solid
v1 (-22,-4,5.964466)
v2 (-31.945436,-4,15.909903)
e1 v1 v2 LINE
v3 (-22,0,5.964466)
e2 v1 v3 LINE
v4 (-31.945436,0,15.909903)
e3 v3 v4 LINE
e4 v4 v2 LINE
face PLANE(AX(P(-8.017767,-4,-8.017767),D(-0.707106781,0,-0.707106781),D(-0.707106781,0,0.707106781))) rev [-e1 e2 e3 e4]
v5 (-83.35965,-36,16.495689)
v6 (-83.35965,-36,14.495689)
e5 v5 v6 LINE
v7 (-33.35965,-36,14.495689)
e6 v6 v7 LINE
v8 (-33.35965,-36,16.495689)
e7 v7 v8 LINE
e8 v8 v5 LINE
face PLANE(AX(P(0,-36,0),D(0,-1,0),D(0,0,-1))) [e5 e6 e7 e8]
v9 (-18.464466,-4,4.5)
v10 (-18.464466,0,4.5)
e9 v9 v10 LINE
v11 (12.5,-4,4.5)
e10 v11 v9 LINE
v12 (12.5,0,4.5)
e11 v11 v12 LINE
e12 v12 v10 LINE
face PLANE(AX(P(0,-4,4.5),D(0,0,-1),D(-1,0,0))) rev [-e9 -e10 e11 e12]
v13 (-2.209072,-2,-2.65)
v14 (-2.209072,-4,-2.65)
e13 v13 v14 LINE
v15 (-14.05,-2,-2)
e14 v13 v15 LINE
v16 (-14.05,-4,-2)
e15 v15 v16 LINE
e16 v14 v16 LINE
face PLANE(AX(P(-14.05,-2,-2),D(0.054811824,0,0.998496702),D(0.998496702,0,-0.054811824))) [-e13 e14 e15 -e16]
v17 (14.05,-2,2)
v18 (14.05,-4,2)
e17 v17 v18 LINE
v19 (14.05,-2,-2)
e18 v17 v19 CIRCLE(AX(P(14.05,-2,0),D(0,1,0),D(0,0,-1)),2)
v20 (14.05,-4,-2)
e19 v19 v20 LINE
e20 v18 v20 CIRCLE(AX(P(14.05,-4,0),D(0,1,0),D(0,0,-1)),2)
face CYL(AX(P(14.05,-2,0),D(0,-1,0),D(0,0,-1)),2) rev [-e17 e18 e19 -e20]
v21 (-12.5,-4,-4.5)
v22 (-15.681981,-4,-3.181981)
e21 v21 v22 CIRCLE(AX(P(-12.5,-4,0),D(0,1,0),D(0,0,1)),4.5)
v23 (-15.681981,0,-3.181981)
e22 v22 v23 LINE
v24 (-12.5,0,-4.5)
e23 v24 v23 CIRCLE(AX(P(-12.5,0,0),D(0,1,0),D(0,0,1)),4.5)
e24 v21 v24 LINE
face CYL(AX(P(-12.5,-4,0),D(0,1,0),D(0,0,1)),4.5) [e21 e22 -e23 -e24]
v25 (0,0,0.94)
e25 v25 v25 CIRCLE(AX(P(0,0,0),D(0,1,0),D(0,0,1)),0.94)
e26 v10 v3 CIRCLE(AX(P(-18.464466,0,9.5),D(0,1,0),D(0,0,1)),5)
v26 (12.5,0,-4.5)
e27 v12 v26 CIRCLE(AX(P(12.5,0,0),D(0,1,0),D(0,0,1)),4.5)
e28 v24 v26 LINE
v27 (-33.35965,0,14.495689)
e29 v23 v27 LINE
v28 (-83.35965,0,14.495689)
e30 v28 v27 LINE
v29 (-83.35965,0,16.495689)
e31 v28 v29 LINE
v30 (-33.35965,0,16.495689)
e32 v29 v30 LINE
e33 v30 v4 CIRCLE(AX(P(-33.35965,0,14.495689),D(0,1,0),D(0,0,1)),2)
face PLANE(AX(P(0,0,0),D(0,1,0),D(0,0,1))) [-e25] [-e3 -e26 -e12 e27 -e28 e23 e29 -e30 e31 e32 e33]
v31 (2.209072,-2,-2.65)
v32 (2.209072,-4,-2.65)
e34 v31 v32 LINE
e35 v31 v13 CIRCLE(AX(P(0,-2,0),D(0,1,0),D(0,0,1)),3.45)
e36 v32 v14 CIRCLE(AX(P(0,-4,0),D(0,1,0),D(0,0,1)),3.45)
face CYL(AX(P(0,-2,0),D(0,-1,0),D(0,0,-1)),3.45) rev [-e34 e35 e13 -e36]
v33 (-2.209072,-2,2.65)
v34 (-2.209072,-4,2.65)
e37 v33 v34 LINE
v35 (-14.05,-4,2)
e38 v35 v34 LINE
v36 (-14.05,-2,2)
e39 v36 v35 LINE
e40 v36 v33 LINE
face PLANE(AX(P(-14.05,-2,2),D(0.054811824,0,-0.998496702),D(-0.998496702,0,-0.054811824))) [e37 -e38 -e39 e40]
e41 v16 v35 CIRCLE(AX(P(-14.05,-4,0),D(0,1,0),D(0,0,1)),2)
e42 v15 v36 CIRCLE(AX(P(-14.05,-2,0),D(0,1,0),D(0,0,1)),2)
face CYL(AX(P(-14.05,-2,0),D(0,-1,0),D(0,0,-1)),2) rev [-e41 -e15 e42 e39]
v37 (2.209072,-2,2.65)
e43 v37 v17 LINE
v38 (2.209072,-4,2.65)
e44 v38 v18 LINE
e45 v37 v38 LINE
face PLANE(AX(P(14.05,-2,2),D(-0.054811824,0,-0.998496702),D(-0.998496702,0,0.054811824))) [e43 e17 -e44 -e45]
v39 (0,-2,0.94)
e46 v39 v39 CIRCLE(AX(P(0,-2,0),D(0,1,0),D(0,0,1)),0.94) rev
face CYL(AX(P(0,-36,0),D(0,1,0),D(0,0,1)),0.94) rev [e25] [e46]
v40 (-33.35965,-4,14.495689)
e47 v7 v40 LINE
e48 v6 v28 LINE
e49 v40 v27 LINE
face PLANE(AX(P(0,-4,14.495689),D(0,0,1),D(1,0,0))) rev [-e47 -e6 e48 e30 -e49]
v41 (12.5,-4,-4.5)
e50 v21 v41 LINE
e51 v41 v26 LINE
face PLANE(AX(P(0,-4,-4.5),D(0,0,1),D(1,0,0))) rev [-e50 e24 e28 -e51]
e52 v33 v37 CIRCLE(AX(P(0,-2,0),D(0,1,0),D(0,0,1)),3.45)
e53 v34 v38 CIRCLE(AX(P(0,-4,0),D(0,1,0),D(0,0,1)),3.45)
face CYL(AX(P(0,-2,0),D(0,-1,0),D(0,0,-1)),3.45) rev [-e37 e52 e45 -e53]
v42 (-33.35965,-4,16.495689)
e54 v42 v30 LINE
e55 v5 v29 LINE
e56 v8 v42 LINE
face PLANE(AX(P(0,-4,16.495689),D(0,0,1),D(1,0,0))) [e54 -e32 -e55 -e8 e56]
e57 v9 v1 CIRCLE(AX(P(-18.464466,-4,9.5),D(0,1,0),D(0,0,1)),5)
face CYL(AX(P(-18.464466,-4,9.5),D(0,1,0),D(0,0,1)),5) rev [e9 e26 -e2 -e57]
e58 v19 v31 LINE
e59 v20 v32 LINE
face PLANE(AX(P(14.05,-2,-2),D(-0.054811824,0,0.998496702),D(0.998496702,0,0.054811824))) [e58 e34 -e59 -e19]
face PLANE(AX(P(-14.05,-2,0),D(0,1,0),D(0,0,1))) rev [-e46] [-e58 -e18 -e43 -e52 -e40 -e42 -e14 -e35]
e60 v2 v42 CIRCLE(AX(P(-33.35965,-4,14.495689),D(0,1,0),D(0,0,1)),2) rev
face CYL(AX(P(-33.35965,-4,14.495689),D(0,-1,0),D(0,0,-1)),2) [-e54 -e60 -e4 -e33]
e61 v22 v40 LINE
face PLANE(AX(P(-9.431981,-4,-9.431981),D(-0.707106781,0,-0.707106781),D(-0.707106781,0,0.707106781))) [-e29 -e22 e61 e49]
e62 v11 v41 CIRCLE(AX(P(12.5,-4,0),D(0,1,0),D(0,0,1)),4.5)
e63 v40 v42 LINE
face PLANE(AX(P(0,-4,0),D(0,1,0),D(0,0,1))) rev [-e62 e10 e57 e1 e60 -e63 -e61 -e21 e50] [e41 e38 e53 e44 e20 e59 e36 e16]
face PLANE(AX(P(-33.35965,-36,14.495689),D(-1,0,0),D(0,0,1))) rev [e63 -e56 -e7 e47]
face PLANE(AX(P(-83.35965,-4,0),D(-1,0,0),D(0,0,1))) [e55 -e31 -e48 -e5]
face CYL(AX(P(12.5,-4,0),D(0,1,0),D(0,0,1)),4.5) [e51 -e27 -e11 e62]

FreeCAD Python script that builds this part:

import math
import FreeCAD as App
import Part
import Sketcher
from FreeCAD import Vector
Q = App.Units.Quantity


def edges_at(feature, points):
    """Names of the edges that pass closest to the given points."""
    edges = feature.Shape.Edges
    near = lambda p: min(range(len(edges)), key=lambda i: edges[i].distToShape(Part.Vertex(*p))[0])
    return sorted({f"Edge{near(p) + 1}" for p in points})

doc = App.newDocument("Part")
body = doc.addObject("PartDesign::Body", "Body")

# Sketch on XZ plane
sketch1 = doc.addObject("Sketcher::SketchObject", "Sketch")
body.addObject(sketch1)
sketch1.AttachmentSupport = (doc.XZ_Plane, [""])
sketch1.MapMode = "FlatFace"
sketch1.addGeometry([
    Part.LineSegment(Vector(12.5, -4.5, 0), Vector(-12.5, -4.5, 0)),  # 0
    Part.ArcOfCircle(Part.Circle(Vector(-12.5, 0, 0), Vector(0, 0, 1), 4.5), math.radians(-135), math.radians(-90)),  # 1
    Part.LineSegment(Vector(-15.7, -3.2, 0), Vector(-33.4, 14.5, 0)),  # 2
    Part.LineSegment(Vector(-33.4, 14.5, 0), Vector(-83.4, 14.5, 0)),  # 3
    Part.LineSegment(Vector(-83.4, 14.5, 0), Vector(-83.4, 16.5, 0)),  # 4
    Part.LineSegment(Vector(-83.4, 16.5, 0), Vector(-32.5, 16.5, 0)),  # 5
    Part.LineSegment(Vector(-32.5, 16.5, 0), Vector(-22, 6, 0)),  # 6
    Part.ArcOfCircle(Part.Circle(Vector(-18.5, 9.5, 0), Vector(0, 0, 1), 5), math.radians(-135), math.radians(-90)),  # 7
    Part.LineSegment(Vector(-18.5, 4.5, 0), Vector(12.5, 4.5, 0)),  # 8
    Part.ArcOfCircle(Part.Circle(Vector(12.5, 0, 0), Vector(0, 0, 1), 4.5), math.radians(-90), math.radians(90)),  # 9
], False)
sketch1.addConstraint([
    Sketcher.Constraint("Tangent", 0, 2, 1, 2),
    Sketcher.Constraint("Tangent", 1, 1, 2, 1),
    Sketcher.Constraint("Coincident", 2, 2, 3, 1),
    Sketcher.Constraint("Coincident", 3, 2, 4, 1),
    Sketcher.Constraint("Coincident", 4, 2, 5, 1),
    Sketcher.Constraint("Coincident", 5, 2, 6, 1),
    Sketcher.Constraint("Tangent", 6, 2, 7, 1),
    Sketcher.Constraint("Tangent", 7, 2, 8, 1),
    Sketcher.Constraint("Tangent", 8, 2, 9, 2),
    Sketcher.Constraint("Tangent", 9, 1, 0, 1),
    Sketcher.Constraint("Horizontal", 0),
    Sketcher.Constraint("Horizontal", 3),
    Sketcher.Constraint("Vertical", 4),
    Sketcher.Constraint("Horizontal", 5),
    Sketcher.Constraint("Horizontal", 8),
    Sketcher.Constraint("Equal", 1, 9),
    Sketcher.Constraint("Symmetric", 1, 3, 9, 3, -1, 1),
    Sketcher.Constraint("Parallel", 2, 6),
    Sketcher.Constraint("Radius", 7, Q("5 mm")),
    Sketcher.Constraint("Radius", 1, Q("4.5 mm")),
    Sketcher.Constraint("DistanceX", 0, 2, 0, 1, Q("25 mm")),
    Sketcher.Constraint("DistanceX", 3, 2, 3, 1, Q("50 mm")),
    Sketcher.Constraint("DistanceY", 4, 1, 4, 2, Q("2 mm")),
    Sketcher.Constraint("Angle", 2, Q("135 deg")),
    Sketcher.Constraint("Distance", 2, Q("25 mm")),
    Sketcher.Constraint("DistanceX", 6, 2, -1, 1, Q("22 mm")),
])
pad1 = doc.addObject("PartDesign::Pad", "Pad")
body.addObject(pad1)
pad1.Profile = sketch1
pad1.Length = 4

# Sketch on XZ plane
sketch2 = doc.addObject("Sketcher::SketchObject", "Sketch001")
body.addObject(sketch2)
sketch2.AttachmentSupport = (doc.XZ_Plane, [""])
sketch2.MapMode = "FlatFace"
sketch2.AttachmentOffset = App.Placement(Vector(0, 0, 4), App.Rotation())
sketch2.addGeometry([
    Part.LineSegment(Vector(-83.4, 16.5, 0), Vector(-83.4, 14.5, 0)),
    Part.LineSegment(Vector(-83.4, 14.5, 0), Vector(-33.4, 14.5, 0)),
    Part.LineSegment(Vector(-33.4, 14.5, 0), Vector(-33.4, 16.5, 0)),
    Part.LineSegment(Vector(-33.4, 16.5, 0), Vector(-83.4, 16.5, 0)),
], False)
sketch2.addConstraint([
    Sketcher.Constraint("Coincident", 0, 2, 1, 1),
    Sketcher.Constraint("Coincident", 1, 2, 2, 1),
    Sketcher.Constraint("Coincident", 2, 2, 3, 1),
    Sketcher.Constraint("Coincident", 3, 2, 0, 1),
    Sketcher.Constraint("Vertical", 0),
    Sketcher.Constraint("Horizontal", 1),
    Sketcher.Constraint("Vertical", 2),
    Sketcher.Constraint("Horizontal", 3),
    Sketcher.Constraint("DistanceX", 1, 1, 1, 2, Q("50 mm")),
    Sketcher.Constraint("DistanceY", 0, 2, 0, 1, Q("2 mm")),
    Sketcher.Constraint("DistanceX", 0, 2, -1, 1, Q("83.35965 mm")),
    Sketcher.Constraint("DistanceY", -1, 1, 0, 2, Q("14.495689 mm")),
])
pad2 = doc.addObject("PartDesign::Pad", "Pad001")
body.addObject(pad2)
pad2.Profile = sketch2
pad2.Length = 32

# Sketch on XZ plane
sketch3 = doc.addObject("Sketcher::SketchObject", "Sketch002")
body.addObject(sketch3)
sketch3.AttachmentSupport = (doc.XZ_Plane, [""])
sketch3.MapMode = "FlatFace"
sketch3.addGeometry(Part.Circle(Vector(0, 0, 0), Vector(0, 0, 1), 0.9), False)
sketch3.addConstraint([
    Sketcher.Constraint("Coincident", 0, 3, -1, 1),
    Sketcher.Constraint("Diameter", 0, Q("1.88 mm")),
])
pocket1 = doc.addObject("PartDesign::Pocket", "Pocket")
body.addObject(pocket1)
pocket1.Profile = sketch3
pocket1.Type = "ThroughAll"
pocket1.Reversed = True

# Sketch on XZ plane
sketch4 = doc.addObject("Sketcher::SketchObject", "Sketch003")
body.addObject(sketch4)
sketch4.AttachmentSupport = (doc.XZ_Plane, [""])
sketch4.MapMode = "FlatFace"
sketch4.AttachmentOffset = App.Placement(Vector(0, 0, 4), App.Rotation())
sketch4.addGeometry([
    Part.LineSegment(Vector(-2.2, -2.6, 0), Vector(-14.1, -2, 0)),  # 0
    Part.ArcOfCircle(Part.Circle(Vector(-14.1, 0, 0), Vector(0, 0, 1), 2), math.radians(90), math.radians(270)),  # 1
    Part.LineSegment(Vector(-14.1, 2, 0), Vector(-2.2, 2.6, 0)),  # 2
    Part.ArcOfCircle(Part.Circle(Vector(0, 0, 0), Vector(0, 0, 1), 3.4), math.radians(50), math.radians(130)),  # 3
    Part.LineSegment(Vector(2.2, 2.6, 0), Vector(14.1, 2, 0)),  # 4
    Part.ArcOfCircle(Part.Circle(Vector(14.1, 0, 0), Vector(0, 0, 1), 2), math.radians(-90), math.radians(90)),  # 5
    Part.LineSegment(Vector(14.1, -2, 0), Vector(2.2, -2.6, 0)),  # 6
    Part.ArcOfCircle(Part.Circle(Vector(0, 0, 0), Vector(0, 0, 1), 3.4), math.radians(-130), math.radians(-50)),  # 7
], False)
sketch4.addConstraint([
    Sketcher.Constraint("Coincident", 0, 2, 1, 2),
    Sketcher.Constraint("Coincident", 1, 1, 2, 1),
    Sketcher.Constraint("Coincident", 2, 2, 3, 2),
    Sketcher.Constraint("Coincident", 3, 1, 4, 1),
    Sketcher.Constraint("Coincident", 4, 2, 5, 2),
    Sketcher.Constraint("Coincident", 5, 1, 6, 1),
    Sketcher.Constraint("Coincident", 6, 2, 7, 2),
    Sketcher.Constraint("Coincident", 7, 1, 0, 1),
    Sketcher.Constraint("Coincident", 3, 3, -1, 1),
    Sketcher.Constraint("Coincident", 7, 3, -1, 1),
    Sketcher.Constraint("Equal", 1, 5),
    Sketcher.Constraint("Equal", 3, 7),
    Sketcher.Constraint("Symmetric", 1, 3, 5, 3, -1, 1),
    Sketcher.Constraint("Symmetric", 1, 1, 4, 2, -2),
    Sketcher.Constraint("Parallel", 0, 4),
    Sketcher.Constraint("Parallel", 2, 6),
    Sketcher.Constraint("Horizontal", 2, 2, 3, 1),
    Sketcher.Constraint("Horizontal", 6, 2, 7, 1),
    Sketcher.Constraint("Vertical", 1, 3, 0, 2),
    Sketcher.Constraint("Vertical", 0, 2, 1, 1),
    Sketcher.Constraint("Radius", 1, Q("2 mm")),
    Sketcher.Constraint("Radius", 3, Q("3.45 mm")),
    Sketcher.Constraint("DistanceX", 1, 3, 5, 3, Q("28.1 mm")),
    Sketcher.Constraint("DistanceY", 6, 2, 3, 1, Q("5.3 mm")),
])
pocket2 = doc.addObject("PartDesign::Pocket", "Pocket001")
body.addObject(pocket2)
pocket2.Profile = sketch4
pocket2.Length = 2
doc.recompute()

fillet = doc.addObject("PartDesign::Fillet", "Fillet")
body.addObject(fillet)
fillet.Base = (pocket2, edges_at(pocket2, [(-32.531, -2, 16.496)]))
fillet.Radius = 2

doc.recompute()
